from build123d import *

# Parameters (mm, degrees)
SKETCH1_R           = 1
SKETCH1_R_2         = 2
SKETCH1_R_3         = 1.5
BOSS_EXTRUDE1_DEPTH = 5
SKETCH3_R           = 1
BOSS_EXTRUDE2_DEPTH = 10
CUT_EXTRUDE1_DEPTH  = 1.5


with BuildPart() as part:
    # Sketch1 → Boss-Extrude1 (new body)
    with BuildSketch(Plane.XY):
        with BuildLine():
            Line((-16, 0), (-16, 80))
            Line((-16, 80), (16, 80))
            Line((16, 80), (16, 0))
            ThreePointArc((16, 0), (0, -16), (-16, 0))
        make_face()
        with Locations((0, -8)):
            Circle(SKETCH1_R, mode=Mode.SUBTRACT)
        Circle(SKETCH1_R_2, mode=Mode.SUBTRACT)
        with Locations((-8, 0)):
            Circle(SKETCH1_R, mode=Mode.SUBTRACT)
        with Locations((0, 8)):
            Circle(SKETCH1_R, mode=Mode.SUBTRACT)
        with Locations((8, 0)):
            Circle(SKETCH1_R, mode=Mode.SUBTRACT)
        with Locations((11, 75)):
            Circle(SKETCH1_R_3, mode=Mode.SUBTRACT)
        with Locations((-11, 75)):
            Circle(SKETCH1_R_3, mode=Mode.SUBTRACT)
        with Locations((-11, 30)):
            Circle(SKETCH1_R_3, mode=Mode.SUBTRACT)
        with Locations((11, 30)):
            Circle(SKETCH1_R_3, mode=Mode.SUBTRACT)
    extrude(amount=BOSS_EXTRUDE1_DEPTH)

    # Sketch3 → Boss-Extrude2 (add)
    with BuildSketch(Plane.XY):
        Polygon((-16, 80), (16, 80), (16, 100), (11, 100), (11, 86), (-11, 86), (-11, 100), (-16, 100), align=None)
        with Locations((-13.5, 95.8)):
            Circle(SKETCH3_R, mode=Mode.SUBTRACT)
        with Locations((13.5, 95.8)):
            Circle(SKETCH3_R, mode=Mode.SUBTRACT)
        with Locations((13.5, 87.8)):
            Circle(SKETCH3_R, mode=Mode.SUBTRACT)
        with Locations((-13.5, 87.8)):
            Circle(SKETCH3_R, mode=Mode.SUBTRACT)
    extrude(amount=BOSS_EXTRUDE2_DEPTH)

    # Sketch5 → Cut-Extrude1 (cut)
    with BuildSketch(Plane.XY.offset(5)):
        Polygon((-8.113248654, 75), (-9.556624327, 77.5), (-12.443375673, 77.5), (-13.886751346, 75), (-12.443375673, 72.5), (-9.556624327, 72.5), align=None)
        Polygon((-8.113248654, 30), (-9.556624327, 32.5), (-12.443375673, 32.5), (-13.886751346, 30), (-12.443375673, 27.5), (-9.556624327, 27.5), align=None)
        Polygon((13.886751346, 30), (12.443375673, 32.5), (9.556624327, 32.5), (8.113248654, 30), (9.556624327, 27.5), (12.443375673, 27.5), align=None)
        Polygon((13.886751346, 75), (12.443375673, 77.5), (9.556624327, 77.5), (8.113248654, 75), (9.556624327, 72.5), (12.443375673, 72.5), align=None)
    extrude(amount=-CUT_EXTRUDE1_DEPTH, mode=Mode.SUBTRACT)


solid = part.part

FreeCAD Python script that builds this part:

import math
import FreeCAD as App
import Part
import Sketcher
from FreeCAD import Vector
Q = App.Units.Quantity


def add_polygon(sketch, points):
    """Adds a closed chain of lines whose ends are joined by coincident constraints."""
    first, n = sketch.GeometryCount, len(points)
    for a, b in zip(points, points[1:] + points[:1]):
        sketch.addGeometry(Part.LineSegment(App.Vector(*a, 0), App.Vector(*b, 0)), False)
    for i in range(n):
        sketch.addConstraint(Sketcher.Constraint("Coincident", first + i, 2, first + (i + 1) % n, 1))

doc = App.newDocument("Part")
body = doc.addObject("PartDesign::Body", "Body")

sketch1 = body.newObject("Sketcher::SketchObject", "Sketch")
sketch1.AttachmentSupport = (doc.getObject("XY_Plane"), [""])
sketch1.MapMode = "FlatFace"
sketch1.addGeometry([
    Part.LineSegment(Vector(-16, 80, 0), Vector(-16, 0, 0)),
    Part.ArcOfCircle(Part.Circle(Vector(0, 0, 0), Vector(0, 0, 1), 16), math.radians(180), math.radians(360)),
    Part.LineSegment(Vector(16, 0, 0), Vector(16, 80, 0)),
    Part.LineSegment(Vector(16, 80, 0), Vector(-16, 80, 0)),
    Part.Circle(Vector(8, 0, 0), Vector(0, 0, 1), 1),
    Part.Circle(Vector(11, 30, 0), Vector(0, 0, 1), 1.5),
    Part.Circle(Vector(0, -8, 0), Vector(0, 0, 1), 1),
    Part.Circle(Vector(0, 0, 0), Vector(0, 0, 1), 2),
    Part.Circle(Vector(0, 8, 0), Vector(0, 0, 1), 1),
    Part.Circle(Vector(-8, 0, 0), Vector(0, 0, 1), 1),
    Part.Circle(Vector(-11, 30, 0), Vector(0, 0, 1), 1.5),
    Part.Circle(Vector(11, 75, 0), Vector(0, 0, 1), 1.5),
    Part.Circle(Vector(-11, 75, 0), Vector(0, 0, 1), 1.5),
], False)
sketch1.addConstraint([
    Sketcher.Constraint("Tangent", 0, 2, 1, 1),
    Sketcher.Constraint("Tangent", 1, 2, 2, 1),
    Sketcher.Constraint("Coincident", 2, 2, 3, 1),
    Sketcher.Constraint("Coincident", 3, 2, 0, 1),
    Sketcher.Constraint("Vertical", 0),
    Sketcher.Constraint("Vertical", 2),
    Sketcher.Constraint("Horizontal", 3),
    Sketcher.Constraint("Coincident", 1, 3, -1, 1),
    Sketcher.Constraint("Coincident", 7, 3, -1, 1),
    Sketcher.Constraint("Equal", 4, 6),
    Sketcher.Constraint("Equal", 6, 8),
    Sketcher.Constraint("Equal", 8, 9),
    Sketcher.Constraint("Equal", 5, 10),
    Sketcher.Constraint("Equal", 10, 11),
    Sketcher.Constraint("Equal", 11, 12),
    Sketcher.Constraint("Symmetric", 6, 3, 8, 3, -1, 1),
    Sketcher.Constraint("Symmetric", 4, 3, 9, 3, -1, 1),
    Sketcher.Constraint("Symmetric", 5, 3, 10, 3, -2),
    Sketcher.Constraint("Symmetric", 11, 3, 12, 3, -2),
    Sketcher.Constraint("PointOnObject", 4, 3, -1),
    Sketcher.Constraint("PointOnObject", 6, 3, -2),
    Sketcher.Constraint("Vertical", 5, 3, 11, 3),
    Sketcher.Constraint("Diameter", 4, Q("2 mm")),
    Sketcher.Constraint("Diameter", 5, Q("3 mm")),
    Sketcher.Constraint("Diameter", 7, Q("4 mm")),
    Sketcher.Constraint("Radius", 1, Q("16 mm")),
    Sketcher.Constraint("DistanceY", 0, 2, 0, 1, Q("80 mm")),
    Sketcher.Constraint("DistanceX", -1, 1, 4, 3, Q("8 mm")),
    Sketcher.Constraint("DistanceX", -1, 1, 5, 3, Q("11 mm")),
    Sketcher.Constraint("DistanceY", -1, 1, 5, 3, Q("30 mm")),
    Sketcher.Constraint("DistanceY", 6, 3, -1, 1, Q("8 mm")),
    Sketcher.Constraint("DistanceY", -1, 1, 11, 3, Q("75 mm")),
])
pad1 = body.newObject("PartDesign::Pad", "Pad")
pad1.Profile = sketch1
pad1.Length = 5

sketch2 = body.newObject("Sketcher::SketchObject", "Sketch001")
sketch2.AttachmentSupport = (doc.getObject("XY_Plane"), [""])
sketch2.MapMode = "FlatFace"
add_polygon(sketch2, [(-16, 80), (16, 80), (16, 100), (11, 100), (11, 86), (-11, 86), (-11, 100), (-16, 100)])
sketch2.addGeometry(Part.Circle(Vector(-13.5, 87.8, 0), Vector(0, 0, 1), 1), False)
sketch2.addGeometry(Part.Circle(Vector(13.5, 87.8, 0), Vector(0, 0, 1), 1), False)
sketch2.addGeometry(Part.Circle(Vector(-13.5, 95.8, 0), Vector(0, 0, 1), 1), False)
sketch2.addGeometry(Part.Circle(Vector(13.5, 95.8, 0), Vector(0, 0, 1), 1), False)
sketch2.addConstraint([
    Sketcher.Constraint("Horizontal", 0),
    Sketcher.Constraint("Vertical", 1),
    Sketcher.Constraint("Horizontal", 2),
    Sketcher.Constraint("Vertical", 3),
    Sketcher.Constraint("Horizontal", 4),
    Sketcher.Constraint("Vertical", 5),
    Sketcher.Constraint("Horizontal", 6),
    Sketcher.Constraint("Vertical", 7),
    Sketcher.Constraint("Equal", 8, 9),
    Sketcher.Constraint("Equal", 9, 10),
    Sketcher.Constraint("Equal", 10, 11),
    Sketcher.Constraint("Symmetric", 8, 3, 9, 3, -2),
    Sketcher.Constraint("Symmetric", 10, 3, 11, 3, -2),
    Sketcher.Constraint("Symmetric", 2, 2, 5, 2, -2),
    Sketcher.Constraint("Vertical", 8, 3, 10, 3),
    Sketcher.Constraint("Equal", 2, 6),
    Sketcher.Constraint("Diameter", 8, Q("2 mm")),
    Sketcher.Constraint("DistanceX", 0, 1, 0, 2, Q("32 mm")),
    Sketcher.Constraint("DistanceX", 2, 2, 2, 1, Q("5 mm")),
    Sketcher.Constraint("DistanceY", 1, 1, 1, 2, Q("20 mm")),
    Sketcher.Constraint("DistanceY", 3, 2, 3, 1, Q("14 mm")),
    Sketcher.Constraint("DistanceY", -1, 1, 0, 2, Q("80 mm")),
    Sketcher.Constraint("DistanceX", 8, 3, 9, 3, Q("27 mm")),
    Sketcher.Constraint("DistanceY", 8, 3, 10, 3, Q("8 mm")),
    Sketcher.Constraint("DistanceY", -1, 1, 8, 3, Q("87.8 mm")),
])
pad2 = body.newObject("PartDesign::Pad", "Pad001")
pad2.Profile = sketch2
pad2.Length = 10

sketch3 = body.newObject("Sketcher::SketchObject", "Sketch002")
sketch3.AttachmentSupport = (doc.getObject("XY_Plane"), [""])
sketch3.MapMode = "FlatFace"
sketch3.AttachmentOffset = App.Placement(Vector(0, 0, 5), App.Rotation())
add_polygon(sketch3, [(-8.113249, 75), (-9.556624, 77.5), (-12.443376, 77.5), (-13.886751, 75), (-12.443376, 72.5), (-9.556624, 72.5)])
add_polygon(sketch3, [(-8.113249, 30), (-9.556624, 32.5), (-12.443376, 32.5), (-13.886751, 30), (-12.443376, 27.5), (-9.556624, 27.5)])
add_polygon(sketch3, [(13.886751, 30), (12.443376, 32.5), (9.556624, 32.5), (8.113249, 30), (9.556624, 27.5), (12.443376, 27.5)])
add_polygon(sketch3, [(13.886751, 75), (12.443376, 77.5), (9.556624, 77.5), (8.113249, 75), (9.556624, 72.5), (12.443376, 72.5)])
sketch3.addConstraint([
    Sketcher.Constraint("Horizontal", 1),
    Sketcher.Constraint("Horizontal", 4),
    Sketcher.Constraint("Horizontal", 7),
    Sketcher.Constraint("Horizontal", 10),
    Sketcher.Constraint("Horizontal", 13),
    Sketcher.Constraint("Horizontal", 16),
    Sketcher.Constraint("Horizontal", 19),
    Sketcher.Constraint("Horizontal", 22),
    Sketcher.Constraint("Symmetric", 7, 2, 12, 2, -2),
    Sketcher.Constraint("Symmetric", 11, 2, 14, 2, -2),
    Sketcher.Constraint("Symmetric", 10, 2, 15, 2, -2),
    Sketcher.Constraint("Symmetric", 8, 2, 17, 2, -2),
    Sketcher.Constraint("Symmetric", 1, 2, 18, 2, -2),
    Sketcher.Constraint("Symmetric", 5, 2, 20, 2, -2),
    Sketcher.Constraint("Symmetric", 4, 2, 21, 2, -2),
    Sketcher.Constraint("Symmetric", 2, 2, 23, 2, -2),
    Sketcher.Constraint("Parallel", 0, 3),
    Sketcher.Constraint("Parallel", 2, 5),
    Sketcher.Constraint("Parallel", 3, 6),
    Sketcher.Constraint("Parallel", 5, 8),
    Sketcher.Constraint("Parallel", 6, 9),
    Sketcher.Constraint("Parallel", 8, 11),
    Sketcher.Constraint("Parallel", 9, 12),
    Sketcher.Constraint("Parallel", 11, 14),
    Sketcher.Constraint("Parallel", 14, 17),
    Sketcher.Constraint("Parallel", 17, 20),
    Sketcher.Constraint("Parallel", 20, 23),
    Sketcher.Constraint("Horizontal", 2, 2, 5, 2),
    Sketcher.Constraint("Horizontal", 8, 2, 11, 2),
    Sketcher.Constraint("Vertical", 1, 2, 3, 2),
    Sketcher.Constraint("Vertical", 4, 2, 6, 2),
    Sketcher.Constraint("Vertical", 3, 2, 7, 2),
    Sketcher.Constraint("Vertical", 2, 2, 8, 2),
    Sketcher.Constraint("Vertical", 7, 2, 9, 2),
    Sketcher.Constraint("Angle", 0, Q("120 deg")),
    Sketcher.Constraint("DistanceY", -1, 1, 2, 2, Q("75 mm")),
    Sketcher.Constraint("DistanceY", -1, 1, 8, 2, Q("30 mm")),
    Sketcher.Constraint("DistanceY", 3, 2, 1, 2, Q("5 mm")),
    Sketcher.Constraint("DistanceX", 6, 2, 12, 2, Q("22 mm")),
    Sketcher.Constraint("DistanceX", 1, 2, 1, 1, Q("2.886751 mm")),
])
pocket1 = body.newObject("PartDesign::Pocket", "Pocket")
pocket1.Profile = sketch3
pocket1.Length = 1.5

doc.recompute()
